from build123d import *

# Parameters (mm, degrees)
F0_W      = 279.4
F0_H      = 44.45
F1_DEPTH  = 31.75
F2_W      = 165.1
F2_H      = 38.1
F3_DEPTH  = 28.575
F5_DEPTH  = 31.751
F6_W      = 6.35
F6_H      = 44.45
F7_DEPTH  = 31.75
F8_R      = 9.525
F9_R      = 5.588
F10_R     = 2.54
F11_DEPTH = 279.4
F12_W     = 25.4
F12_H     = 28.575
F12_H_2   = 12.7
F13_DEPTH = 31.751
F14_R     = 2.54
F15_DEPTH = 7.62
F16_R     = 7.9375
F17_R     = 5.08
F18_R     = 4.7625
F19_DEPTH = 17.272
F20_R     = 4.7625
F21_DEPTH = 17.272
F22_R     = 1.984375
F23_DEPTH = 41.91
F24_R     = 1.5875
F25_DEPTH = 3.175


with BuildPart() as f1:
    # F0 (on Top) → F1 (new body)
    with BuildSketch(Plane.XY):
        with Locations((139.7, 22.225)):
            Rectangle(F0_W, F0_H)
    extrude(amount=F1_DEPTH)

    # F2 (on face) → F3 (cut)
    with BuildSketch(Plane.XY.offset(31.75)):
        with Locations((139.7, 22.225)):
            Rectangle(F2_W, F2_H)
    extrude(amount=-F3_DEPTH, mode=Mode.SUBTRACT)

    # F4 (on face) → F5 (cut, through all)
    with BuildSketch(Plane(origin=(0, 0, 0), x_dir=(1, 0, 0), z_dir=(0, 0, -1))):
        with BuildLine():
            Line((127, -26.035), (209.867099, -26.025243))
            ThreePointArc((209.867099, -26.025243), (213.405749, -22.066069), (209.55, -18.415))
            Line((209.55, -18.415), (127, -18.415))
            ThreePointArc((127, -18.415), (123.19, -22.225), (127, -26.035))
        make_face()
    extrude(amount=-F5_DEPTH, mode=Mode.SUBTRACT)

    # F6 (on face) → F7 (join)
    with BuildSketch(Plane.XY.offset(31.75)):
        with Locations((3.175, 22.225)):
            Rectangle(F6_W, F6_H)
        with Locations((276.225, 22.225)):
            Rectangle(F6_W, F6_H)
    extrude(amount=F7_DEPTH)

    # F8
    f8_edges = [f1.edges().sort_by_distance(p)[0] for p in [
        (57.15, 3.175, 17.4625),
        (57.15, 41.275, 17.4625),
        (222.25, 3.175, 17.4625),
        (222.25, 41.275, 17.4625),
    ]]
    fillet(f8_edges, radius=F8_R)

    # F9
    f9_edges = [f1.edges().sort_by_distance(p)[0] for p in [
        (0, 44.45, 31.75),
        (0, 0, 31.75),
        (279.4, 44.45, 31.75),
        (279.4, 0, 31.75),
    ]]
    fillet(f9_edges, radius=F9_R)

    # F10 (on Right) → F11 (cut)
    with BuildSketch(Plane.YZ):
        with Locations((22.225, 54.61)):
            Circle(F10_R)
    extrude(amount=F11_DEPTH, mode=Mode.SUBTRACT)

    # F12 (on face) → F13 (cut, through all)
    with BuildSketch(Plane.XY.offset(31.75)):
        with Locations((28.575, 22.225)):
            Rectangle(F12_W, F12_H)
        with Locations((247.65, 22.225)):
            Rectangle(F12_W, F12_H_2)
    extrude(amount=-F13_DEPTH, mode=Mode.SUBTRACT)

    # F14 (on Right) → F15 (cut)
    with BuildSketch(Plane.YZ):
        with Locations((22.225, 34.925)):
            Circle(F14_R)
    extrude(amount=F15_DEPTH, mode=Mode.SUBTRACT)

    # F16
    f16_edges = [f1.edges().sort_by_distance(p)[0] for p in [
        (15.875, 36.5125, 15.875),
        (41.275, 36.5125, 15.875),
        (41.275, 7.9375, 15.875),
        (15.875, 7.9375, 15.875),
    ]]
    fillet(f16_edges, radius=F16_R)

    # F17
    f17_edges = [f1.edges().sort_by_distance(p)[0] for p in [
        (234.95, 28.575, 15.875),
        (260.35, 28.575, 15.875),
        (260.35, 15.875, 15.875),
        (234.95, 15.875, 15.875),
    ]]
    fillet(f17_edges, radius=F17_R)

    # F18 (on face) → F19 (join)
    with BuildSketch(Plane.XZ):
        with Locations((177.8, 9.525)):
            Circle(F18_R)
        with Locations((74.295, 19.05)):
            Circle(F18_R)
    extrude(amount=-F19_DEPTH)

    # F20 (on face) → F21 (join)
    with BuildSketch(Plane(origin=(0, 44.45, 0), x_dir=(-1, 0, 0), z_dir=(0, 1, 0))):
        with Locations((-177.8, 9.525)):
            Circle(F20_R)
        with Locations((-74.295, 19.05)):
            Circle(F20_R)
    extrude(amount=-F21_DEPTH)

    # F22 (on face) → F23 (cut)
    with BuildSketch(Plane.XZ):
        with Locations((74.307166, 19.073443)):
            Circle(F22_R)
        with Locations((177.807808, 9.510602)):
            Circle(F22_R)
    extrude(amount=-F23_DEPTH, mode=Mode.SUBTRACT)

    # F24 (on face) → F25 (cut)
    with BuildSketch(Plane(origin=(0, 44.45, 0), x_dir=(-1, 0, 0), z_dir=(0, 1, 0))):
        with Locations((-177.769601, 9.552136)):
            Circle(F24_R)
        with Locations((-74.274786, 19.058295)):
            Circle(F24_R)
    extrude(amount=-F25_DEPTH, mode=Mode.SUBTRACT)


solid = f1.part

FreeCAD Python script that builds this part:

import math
import FreeCAD as App
import Part
import Sketcher
Q = App.Units.Quantity


def edges_at(feature, points):
    """Names of the edges that pass closest to the given points."""
    edges = feature.Shape.Edges
    near = lambda p: min(range(len(edges)), key=lambda i: edges[i].distToShape(Part.Vertex(*p))[0])
    return sorted({f"Edge{near(p) + 1}" for p in points})

doc = App.newDocument("Part")
body = doc.addObject("PartDesign::Body", "Body")

# Sketch on XY plane
sketch1 = body.newObject("Sketcher::SketchObject", "Sketch")
sketch1.AttachmentSupport = (doc.getObject("XY_Plane"), [""])
sketch1.MapMode = "FlatFace"
sketch1.addGeometry([
    Part.LineSegment(App.Vector(0, 44, 0), App.Vector(0, 0, 0)),
    Part.LineSegment(App.Vector(0, 0, 0), App.Vector(279, 0, 0)),
    Part.LineSegment(App.Vector(279, 0, 0), App.Vector(279, 44, 0)),
    Part.LineSegment(App.Vector(279, 44, 0), App.Vector(0, 44, 0)),
], False)
sketch1.addConstraint([
    Sketcher.Constraint("Coincident", 0, 2, 1, 1),
    Sketcher.Constraint("Coincident", 1, 2, 2, 1),
    Sketcher.Constraint("Coincident", 2, 2, 3, 1),
    Sketcher.Constraint("Coincident", 3, 2, 0, 1),
    Sketcher.Constraint("Vertical", 0),
    Sketcher.Constraint("Horizontal", 1),
    Sketcher.Constraint("Vertical", 2),
    Sketcher.Constraint("Horizontal", 3),
    Sketcher.Constraint("Coincident", 0, 2, -1, 1),
    Sketcher.Constraint("DistanceX", 1, 1, 1, 2, Q("11 in")),
    Sketcher.Constraint("DistanceY", 0, 2, 0, 1, Q("1.75 in")),
])
pad1 = body.newObject("PartDesign::Pad", "Pad")
pad1.Profile = sketch1
pad1.Length = Q("1.25 in")

# Sketch on XY plane
sketch2 = body.newObject("Sketcher::SketchObject", "Sketch001")
sketch2.AttachmentSupport = (doc.getObject("XY_Plane"), [""])
sketch2.MapMode = "FlatFace"
sketch2.AttachmentOffset = App.Placement(App.Vector(0, 0, 1.25 * 25.4), App.Rotation())
sketch2.addGeometry([
    Part.LineSegment(App.Vector(57, 41, 0), App.Vector(57, 3, 0)),
    Part.LineSegment(App.Vector(57, 3, 0), App.Vector(222, 3, 0)),
    Part.LineSegment(App.Vector(222, 3, 0), App.Vector(222, 41, 0)),
    Part.LineSegment(App.Vector(222, 41, 0), App.Vector(57, 41, 0)),
], False)
sketch2.addConstraint([
    Sketcher.Constraint("Coincident", 0, 2, 1, 1),
    Sketcher.Constraint("Coincident", 1, 2, 2, 1),
    Sketcher.Constraint("Coincident", 2, 2, 3, 1),
    Sketcher.Constraint("Coincident", 3, 2, 0, 1),
    Sketcher.Constraint("Vertical", 0),
    Sketcher.Constraint("Horizontal", 1),
    Sketcher.Constraint("Vertical", 2),
    Sketcher.Constraint("Horizontal", 3),
    Sketcher.Constraint("DistanceX", 1, 1, 1, 2, Q("6.5 in")),
    Sketcher.Constraint("DistanceY", 0, 2, 0, 1, Q("1.5 in")),
    Sketcher.Constraint("DistanceX", -1, 1, 0, 2, Q("2.25 in")),
    Sketcher.Constraint("DistanceY", -1, 1, 0, 2, Q("0.125 in")),
])
pocket1 = body.newObject("PartDesign::Pocket", "Pocket")
pocket1.Profile = sketch2
pocket1.Length = Q("1.125 in")

# Sketch on XY plane
sketch3 = body.newObject("Sketcher::SketchObject", "Sketch002")
sketch3.AttachmentSupport = (doc.getObject("XY_Plane"), [""])
sketch3.MapMode = "FlatFace"
sketch3.addGeometry([
    Part.LineSegment(App.Vector(127, 26, 0), App.Vector(209.9, 26, 0)),
    Part.ArcOfCircle(Part.Circle(App.Vector(209.6, 22.2, 0), App.Vector(0, 0, 1), 3.8), math.radians(-91), math.radians(86)),
    Part.LineSegment(App.Vector(209.6, 18.4, 0), App.Vector(127, 18.4, 0)),
    Part.ArcOfCircle(Part.Circle(App.Vector(127, 22.2, 0), App.Vector(0, 0, 1), 3.8), math.radians(90), math.radians(270)),
], False)
sketch3.addConstraint([
    Sketcher.Constraint("Coincident", 0, 2, 1, 2),
    Sketcher.Constraint("Coincident", 1, 1, 2, 1),
    Sketcher.Constraint("Tangent", 2, 2, 3, 2),
    Sketcher.Constraint("Coincident", 3, 1, 0, 1),
    Sketcher.Constraint("Horizontal", 2),
    Sketcher.Constraint("Equal", 1, 3),
    Sketcher.Constraint("Vertical", 2, 2, 3, 1),
    Sketcher.Constraint("Radius", 1, Q("0.15 in")),
    Sketcher.Constraint("DistanceX", -1, 1, 3, 3, Q("5 in")),
    Sketcher.Constraint("DistanceX", 2, 2, 2, 1, Q("3.25 in")),
    Sketcher.Constraint("DistanceY", -1, 1, 3, 3, Q("0.875 in")),
    Sketcher.Constraint("Distance", 0, 82.8671),
    Sketcher.Constraint("DistanceY", 1, 3, 0, 2, 3.800559),
])
pocket2 = body.newObject("PartDesign::Pocket", "Pocket001")
pocket2.Profile = sketch3
pocket2.Type = "ThroughAll"
pocket2.Reversed = True

# Sketch on XY plane
sketch4 = body.newObject("Sketcher::SketchObject", "Sketch003")
sketch4.AttachmentSupport = (doc.getObject("XY_Plane"), [""])
sketch4.MapMode = "FlatFace"
sketch4.AttachmentOffset = App.Placement(App.Vector(0, 0, 1.25 * 25.4), App.Rotation())
sketch4.addGeometry([
    Part.LineSegment(App.Vector(0, 44, 0), App.Vector(0, 0, 0)),  # 0
    Part.LineSegment(App.Vector(0, 0, 0), App.Vector(6, 0, 0)),  # 1
    Part.LineSegment(App.Vector(6, 0, 0), App.Vector(6, 44, 0)),  # 2
    Part.LineSegment(App.Vector(6, 44, 0), App.Vector(0, 44, 0)),  # 3
    Part.LineSegment(App.Vector(273, 44, 0), App.Vector(273, 0, 0)),  # 4
    Part.LineSegment(App.Vector(273, 0, 0), App.Vector(279, 0, 0)),  # 5
    Part.LineSegment(App.Vector(279, 0, 0), App.Vector(279, 44, 0)),  # 6
    Part.LineSegment(App.Vector(279, 44, 0), App.Vector(273, 44, 0)),  # 7
], False)
sketch4.addConstraint([
    Sketcher.Constraint("Coincident", 0, 2, 1, 1),
    Sketcher.Constraint("Coincident", 1, 2, 2, 1),
    Sketcher.Constraint("Coincident", 2, 2, 3, 1),
    Sketcher.Constraint("Coincident", 3, 2, 0, 1),
    Sketcher.Constraint("Coincident", 4, 2, 5, 1),
    Sketcher.Constraint("Coincident", 5, 2, 6, 1),
    Sketcher.Constraint("Coincident", 6, 2, 7, 1),
    Sketcher.Constraint("Coincident", 7, 2, 4, 1),
    Sketcher.Constraint("Vertical", 0),
    Sketcher.Constraint("Horizontal", 1),
    Sketcher.Constraint("Vertical", 2),
    Sketcher.Constraint("Horizontal", 3),
    Sketcher.Constraint("Vertical", 4),
    Sketcher.Constraint("Horizontal", 5),
    Sketcher.Constraint("Vertical", 6),
    Sketcher.Constraint("Horizontal", 7),
    Sketcher.Constraint("Coincident", 0, 2, -1, 1),
    Sketcher.Constraint("PointOnObject", 4, 2, -1),
    Sketcher.Constraint("Horizontal", 3, 2, 6, 2),
    Sketcher.Constraint("Equal", 3, 5),
    Sketcher.Constraint("DistanceX", -1, 1, 5, 2, Q("11 in")),
    Sketcher.Constraint("DistanceX", 1, 1, 1, 2, Q("0.25 in")),
    Sketcher.Constraint("DistanceY", 0, 2, 0, 1, Q("1.75 in")),
])
pad2 = body.newObject("PartDesign::Pad", "Pad001")
pad2.Profile = sketch4
pad2.Length = Q("1.25 in")
doc.recompute()

fillet = body.newObject("PartDesign::Fillet", "Fillet")
fillet.Base = (pad2, edges_at(pad2, [
    (57.15, 3.175, 17.462),
    (57.15, 41.275, 17.462),
    (222.25, 3.175, 17.462),
    (222.25, 41.275, 17.462),
]))
fillet.Radius = Q("0.375 in")
doc.recompute()

fillet2 = body.newObject("PartDesign::Fillet", "Fillet001")
fillet2.Base = (fillet, edges_at(fillet, [
    (0, 44.45, 31.75),
    (0, 0, 31.75),
    (279.4, 44.45, 31.75),
    (279.4, 0, 31.75),
]))
fillet2.Radius = Q("0.22 in")

# Sketch on YZ plane
sketch5 = body.newObject("Sketcher::SketchObject", "Sketch004")
sketch5.AttachmentSupport = (doc.getObject("YZ_Plane"), [""])
sketch5.MapMode = "FlatFace"
sketch5.addGeometry(Part.Circle(App.Vector(22.2, 54.6, 0), App.Vector(0, 0, 1), 2.5), False)
sketch5.addConstraint([
    Sketcher.Constraint("Diameter", 0, Q("0.2 in")),
    Sketcher.Constraint("DistanceY", -1, 1, 0, 3, Q("2.15 in")),
    Sketcher.Constraint("DistanceX", -1, 1, 0, 3, Q("0.875 in")),
])
pocket3 = body.newObject("PartDesign::Pocket", "Pocket002")
pocket3.Profile = sketch5
pocket3.Length = Q("11 in")
pocket3.Reversed = True

# Sketch on XY plane
sketch6 = body.newObject("Sketcher::SketchObject", "Sketch005")
sketch6.AttachmentSupport = (doc.getObject("XY_Plane"), [""])
sketch6.MapMode = "FlatFace"
sketch6.AttachmentOffset = App.Placement(App.Vector(0, 0, 1.25 * 25.4), App.Rotation())
sketch6.addGeometry([
    Part.LineSegment(App.Vector(16, 37, 0), App.Vector(16, 8, 0)),  # 0
    Part.LineSegment(App.Vector(16, 8, 0), App.Vector(41, 8, 0)),  # 1
    Part.LineSegment(App.Vector(41, 8, 0), App.Vector(41, 37, 0)),  # 2
    Part.LineSegment(App.Vector(41, 37, 0), App.Vector(16, 37, 0)),  # 3
    Part.LineSegment(App.Vector(235, 29, 0), App.Vector(235, 16, 0)),  # 4
    Part.LineSegment(App.Vector(235, 16, 0), App.Vector(260, 16, 0)),  # 5
    Part.LineSegment(App.Vector(260, 16, 0), App.Vector(260, 29, 0)),  # 6
    Part.LineSegment(App.Vector(260, 29, 0), App.Vector(235, 29, 0)),  # 7
], False)
sketch6.addConstraint([
    Sketcher.Constraint("Coincident", 0, 2, 1, 1),
    Sketcher.Constraint("Coincident", 1, 2, 2, 1),
    Sketcher.Constraint("Coincident", 2, 2, 3, 1),
    Sketcher.Constraint("Coincident", 3, 2, 0, 1),
    Sketcher.Constraint("Coincident", 4, 2, 5, 1),
    Sketcher.Constraint("Coincident", 5, 2, 6, 1),
    Sketcher.Constraint("Coincident", 6, 2, 7, 1),
    Sketcher.Constraint("Coincident", 7, 2, 4, 1),
    Sketcher.Constraint("Vertical", 0),
    Sketcher.Constraint("Horizontal", 1),
    Sketcher.Constraint("Vertical", 2),
    Sketcher.Constraint("Horizontal", 3),
    Sketcher.Constraint("Vertical", 4),
    Sketcher.Constraint("Horizontal", 5),
    Sketcher.Constraint("Vertical", 6),
    Sketcher.Constraint("Horizontal", 7),
    Sketcher.Constraint("Equal", 3, 5),
    Sketcher.Constraint("DistanceX", 1, 1, 1, 2, Q("1 in")),
    Sketcher.Constraint("DistanceY", 4, 2, 4, 1, Q("0.5 in")),
    Sketcher.Constraint("DistanceY", 0, 2, 0, 1, Q("1.125 in")),
    Sketcher.Constraint("DistanceX", -1, 1, 4, 2, Q("9.25 in")),
    Sketcher.Constraint("DistanceX", -1, 1, 0, 2, Q("0.625 in")),
    Sketcher.Constraint("DistanceY", -1, 1, 0, 2, Q("0.3125 in")),
    Sketcher.Constraint("DistanceY", -1, 1, 4, 2, Q("0.625 in")),
])
pocket4 = body.newObject("PartDesign::Pocket", "Pocket003")
pocket4.Profile = sketch6
pocket4.Type = "ThroughAll"

# Sketch on YZ plane
sketch7 = body.newObject("Sketcher::SketchObject", "Sketch006")
sketch7.AttachmentSupport = (doc.getObject("YZ_Plane"), [""])
sketch7.MapMode = "FlatFace"
sketch7.addGeometry(Part.Circle(App.Vector(22.2, 34.9, 0), App.Vector(0, 0, 1), 2.5), False)
sketch7.addConstraint([
    Sketcher.Constraint("Diameter", 0, Q("0.2 in")),
    Sketcher.Constraint("DistanceX", -1, 1, 0, 3, Q("0.875 in")),
    Sketcher.Constraint("DistanceY", -1, 1, 0, 3, Q("1.375 in")),
])
pocket5 = body.newObject("PartDesign::Pocket", "Pocket004")
pocket5.Profile = sketch7
pocket5.Length = Q("0.3 in")
pocket5.Reversed = True
doc.recompute()

fillet3 = body.newObject("PartDesign::Fillet", "Fillet002")
fillet3.Base = (pocket5, edges_at(pocket5, [
    (15.875, 36.513, 15.875),
    (41.275, 36.513, 15.875),
    (41.275, 7.938, 15.875),
    (15.875, 7.938, 15.875),
]))
fillet3.Radius = Q("0.3125 in")
doc.recompute()

fillet4 = body.newObject("PartDesign::Fillet", "Fillet003")
fillet4.Base = (fillet3, edges_at(fillet3, [
    (234.95, 28.575, 15.875),
    (260.35, 28.575, 15.875),
    (260.35, 15.875, 15.875),
    (234.95, 15.875, 15.875),
]))
fillet4.Radius = Q("0.2 in")

# Sketch on XZ plane
sketch8 = body.newObject("Sketcher::SketchObject", "Sketch007")
sketch8.AttachmentSupport = (doc.getObject("XZ_Plane"), [""])
sketch8.MapMode = "FlatFace"
sketch8.addGeometry([
    Part.Circle(App.Vector(177.8, 9.5, 0), App.Vector(0, 0, 1), 4.8),
    Part.Circle(App.Vector(74.3, 19.1, 0), App.Vector(0, 0, 1), 4.8),
], False)
sketch8.addConstraint([
    Sketcher.Constraint("Equal", 0, 1),
    Sketcher.Constraint("Diameter", 0, Q("0.375 in")),
    Sketcher.Constraint("DistanceX", -1, 1, 0, 3, Q("7 in")),
    Sketcher.Constraint("DistanceY", -1, 1, 1, 3, Q("0.75 in")),
    Sketcher.Constraint("DistanceY", -1, 1, 0, 3, Q("0.375 in")),
    Sketcher.Constraint("DistanceX", -1, 1, 1, 3, Q("2.925 in")),
])
pad3 = body.newObject("PartDesign::Pad", "Pad002")
pad3.Profile = sketch8
pad3.Length = Q("0.68 in")
pad3.Reversed = True

# Sketch on XZ plane
sketch9 = body.newObject("Sketcher::SketchObject", "Sketch008")
sketch9.AttachmentSupport = (doc.getObject("XZ_Plane"), [""])
sketch9.MapMode = "FlatFace"
sketch9.AttachmentOffset = App.Placement(App.Vector(0, 0, -1.75 * 25.4), App.Rotation())
sketch9.addGeometry([
    Part.Circle(App.Vector(177.8, 9.5, 0), App.Vector(0, 0, 1), 4.8),
    Part.Circle(App.Vector(74.3, 19.1, 0), App.Vector(0, 0, 1), 4.8),
], False)
sketch9.addConstraint([
    Sketcher.Constraint("Equal", 0, 1),
    Sketcher.Constraint("Diameter", 0, Q("0.375 in")),
    Sketcher.Constraint("DistanceX", -1, 1, 0, 3, Q("7 in")),
    Sketcher.Constraint("DistanceY", -1, 1, 1, 3, Q("0.75 in")),
    Sketcher.Constraint("DistanceY", -1, 1, 0, 3, Q("0.375 in")),
    Sketcher.Constraint("DistanceX", -1, 1, 1, 3, Q("2.925 in")),
])
pad4 = body.newObject("PartDesign::Pad", "Pad003")
pad4.Profile = sketch9
pad4.Length = Q("0.68 in")

# Sketch on XZ plane
sketch10 = body.newObject("Sketcher::SketchObject", "Sketch009")
sketch10.AttachmentSupport = (doc.getObject("XZ_Plane"), [""])
sketch10.MapMode = "FlatFace"
sketch10.addGeometry([
    Part.Circle(App.Vector(74.3, 19.1, 0), App.Vector(0, 0, 1), 2),
    Part.Circle(App.Vector(177.8, 9.5, 0), App.Vector(0, 0, 1), 2),
], False)
sketch10.addConstraint([
    Sketcher.Constraint("Equal", 0, 1),
    Sketcher.Constraint("Diameter", 0, Q("0.15625 in")),
    Sketcher.Constraint("DistanceX", -1, 1, 1, 3, 177.807808),
    Sketcher.Constraint("DistanceX", 0, 3, 1, 3, 103.500642),
    Sketcher.Constraint("DistanceY", 1, 3, 0, 3, 9.562841),
    Sketcher.Constraint("DistanceY", -1, 1, 0, 3, 19.073443),
])
pocket6 = body.newObject("PartDesign::Pocket", "Pocket005")
pocket6.Profile = sketch10
pocket6.Length = Q("1.65 in")

# Sketch on XZ plane
sketch11 = body.newObject("Sketcher::SketchObject", "Sketch010")
sketch11.AttachmentSupport = (doc.getObject("XZ_Plane"), [""])
sketch11.MapMode = "FlatFace"
sketch11.AttachmentOffset = App.Placement(App.Vector(0, 0, -1.75 * 25.4), App.Rotation())
sketch11.addGeometry([
    Part.Circle(App.Vector(177.8, 9.6, 0), App.Vector(0, 0, 1), 1.6),
    Part.Circle(App.Vector(74.3, 19.1, 0), App.Vector(0, 0, 1), 1.6),
], False)
sketch11.addConstraint([
    Sketcher.Constraint("Equal", 0, 1),
    Sketcher.Constraint("Diameter", 0, Q("0.125 in")),
    Sketcher.Constraint("DistanceX", -1, 1, 0, 3, 177.769601),
    Sketcher.Constraint("DistanceY", 0, 3, 1, 3, 9.506159),
    Sketcher.Constraint("DistanceY", -1, 1, 0, 3, 9.552136),
    Sketcher.Constraint("DistanceX", -1, 1, 1, 3, 74.274786),
])
pocket7 = body.newObject("PartDesign::Pocket", "Pocket006")
pocket7.Profile = sketch11
pocket7.Length = Q("0.125 in")
pocket7.Reversed = True

doc.recompute()
